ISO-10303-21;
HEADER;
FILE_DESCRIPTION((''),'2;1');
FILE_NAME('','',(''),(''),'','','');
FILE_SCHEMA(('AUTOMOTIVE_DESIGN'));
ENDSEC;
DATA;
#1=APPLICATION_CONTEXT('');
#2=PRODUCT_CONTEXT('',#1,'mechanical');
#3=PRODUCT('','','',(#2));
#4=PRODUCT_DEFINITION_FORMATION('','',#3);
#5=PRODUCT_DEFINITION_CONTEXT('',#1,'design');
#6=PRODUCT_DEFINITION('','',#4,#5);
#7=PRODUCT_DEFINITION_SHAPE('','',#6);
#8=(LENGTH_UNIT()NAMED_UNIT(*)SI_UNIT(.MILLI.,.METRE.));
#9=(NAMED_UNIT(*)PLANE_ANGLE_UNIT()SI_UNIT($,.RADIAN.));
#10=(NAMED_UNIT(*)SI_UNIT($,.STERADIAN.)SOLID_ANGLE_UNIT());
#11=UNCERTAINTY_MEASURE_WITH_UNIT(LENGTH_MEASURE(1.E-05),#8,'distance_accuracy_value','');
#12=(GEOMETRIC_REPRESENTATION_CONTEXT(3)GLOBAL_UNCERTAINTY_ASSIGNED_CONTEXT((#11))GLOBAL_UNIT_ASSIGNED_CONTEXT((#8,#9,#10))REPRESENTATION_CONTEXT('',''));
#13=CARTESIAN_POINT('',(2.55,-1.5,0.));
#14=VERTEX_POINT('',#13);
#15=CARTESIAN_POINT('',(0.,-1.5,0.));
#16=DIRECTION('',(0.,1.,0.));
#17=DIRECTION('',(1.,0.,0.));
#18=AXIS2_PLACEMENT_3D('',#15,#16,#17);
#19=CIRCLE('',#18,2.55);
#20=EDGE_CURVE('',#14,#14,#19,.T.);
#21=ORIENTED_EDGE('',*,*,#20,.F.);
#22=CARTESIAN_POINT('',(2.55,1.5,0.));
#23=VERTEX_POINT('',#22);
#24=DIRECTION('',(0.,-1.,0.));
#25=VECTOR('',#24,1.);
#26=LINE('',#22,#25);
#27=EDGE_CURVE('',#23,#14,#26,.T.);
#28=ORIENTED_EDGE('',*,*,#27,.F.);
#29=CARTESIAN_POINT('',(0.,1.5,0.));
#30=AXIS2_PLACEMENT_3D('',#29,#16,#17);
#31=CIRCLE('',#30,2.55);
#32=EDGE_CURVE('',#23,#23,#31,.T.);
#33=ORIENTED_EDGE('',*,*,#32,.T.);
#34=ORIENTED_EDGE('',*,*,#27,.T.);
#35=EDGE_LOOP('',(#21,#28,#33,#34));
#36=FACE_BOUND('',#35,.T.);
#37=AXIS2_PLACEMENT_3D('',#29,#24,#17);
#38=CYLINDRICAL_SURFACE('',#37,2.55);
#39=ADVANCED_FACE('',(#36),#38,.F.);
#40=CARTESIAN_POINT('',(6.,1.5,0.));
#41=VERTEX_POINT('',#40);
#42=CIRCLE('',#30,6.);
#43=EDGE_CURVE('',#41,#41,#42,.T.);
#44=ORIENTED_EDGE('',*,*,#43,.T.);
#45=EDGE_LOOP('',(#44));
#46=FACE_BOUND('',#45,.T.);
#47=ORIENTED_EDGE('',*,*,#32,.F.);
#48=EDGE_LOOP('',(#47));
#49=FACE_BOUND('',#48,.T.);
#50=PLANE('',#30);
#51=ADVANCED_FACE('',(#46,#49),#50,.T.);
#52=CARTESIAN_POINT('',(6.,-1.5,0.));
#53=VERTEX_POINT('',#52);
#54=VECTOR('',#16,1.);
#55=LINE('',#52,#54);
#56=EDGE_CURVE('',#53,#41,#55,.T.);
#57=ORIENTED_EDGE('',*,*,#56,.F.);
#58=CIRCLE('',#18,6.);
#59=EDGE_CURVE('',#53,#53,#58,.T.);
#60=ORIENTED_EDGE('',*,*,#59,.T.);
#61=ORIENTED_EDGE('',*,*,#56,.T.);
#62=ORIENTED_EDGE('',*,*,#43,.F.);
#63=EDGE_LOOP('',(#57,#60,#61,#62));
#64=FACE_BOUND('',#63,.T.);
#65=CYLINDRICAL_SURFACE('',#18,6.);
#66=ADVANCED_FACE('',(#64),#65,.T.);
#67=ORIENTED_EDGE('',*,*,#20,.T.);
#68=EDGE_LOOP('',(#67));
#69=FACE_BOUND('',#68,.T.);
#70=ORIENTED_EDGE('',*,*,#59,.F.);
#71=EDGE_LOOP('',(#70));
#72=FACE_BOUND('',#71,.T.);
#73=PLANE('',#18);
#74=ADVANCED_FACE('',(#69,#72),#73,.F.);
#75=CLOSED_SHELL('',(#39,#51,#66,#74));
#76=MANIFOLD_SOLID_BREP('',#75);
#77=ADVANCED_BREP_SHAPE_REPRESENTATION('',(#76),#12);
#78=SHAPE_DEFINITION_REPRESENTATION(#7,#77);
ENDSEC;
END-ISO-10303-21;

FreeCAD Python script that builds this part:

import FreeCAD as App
import Part
import Sketcher

V = App.Vector
Q = App.Units.Quantity


def add_polygon(sketch, points):
    """Adds a closed chain of lines whose ends are joined by coincident constraints."""
    first, n = sketch.GeometryCount, len(points)
    for a, b in zip(points, points[1:] + points[:1]):
        sketch.addGeometry(Part.LineSegment(App.Vector(*a, 0), App.Vector(*b, 0)), False)
    for i in range(n):
        sketch.addConstraint(Sketcher.Constraint("Coincident", first + i, 2, first + (i + 1) % n, 1))

doc = App.newDocument("Part")
body = doc.addObject("PartDesign::Body", "Body")

# Sketch on XY plane
sketch1 = body.newObject("Sketcher::SketchObject", "Sketch")
sketch1.AttachmentSupport = (doc.getObject("XY_Plane"), [""])
sketch1.MapMode = "FlatFace"
add_polygon(sketch1, [(6, 1.5), (2.5, 1.5), (2.5, -1.5), (6, -1.5)])  # lines 0-3
sketch1.addConstraint([
    Sketcher.Constraint("Horizontal", 0),
    Sketcher.Constraint("Vertical", 1),
    Sketcher.Constraint("Horizontal", 2),
    Sketcher.Constraint("Vertical", 3),
    Sketcher.Constraint("DistanceY", 1, 2, 1, 1, Q("3 mm")),
    Sketcher.Constraint("DistanceX", -1, 1, 2, 2, Q("6 mm")),
    Sketcher.Constraint("DistanceX", -1, 1, 0, 2, Q("2.55 mm")),
    Sketcher.Constraint("DistanceY", -1, 1, 0, 2, Q("1.5 mm")),
])
revolution = body.newObject("PartDesign::Revolution", "Revolution")
revolution.Profile = sketch1
revolution.ReferenceAxis = (sketch1, ["V_Axis"])
revolution.Angle = 360

doc.recompute()
